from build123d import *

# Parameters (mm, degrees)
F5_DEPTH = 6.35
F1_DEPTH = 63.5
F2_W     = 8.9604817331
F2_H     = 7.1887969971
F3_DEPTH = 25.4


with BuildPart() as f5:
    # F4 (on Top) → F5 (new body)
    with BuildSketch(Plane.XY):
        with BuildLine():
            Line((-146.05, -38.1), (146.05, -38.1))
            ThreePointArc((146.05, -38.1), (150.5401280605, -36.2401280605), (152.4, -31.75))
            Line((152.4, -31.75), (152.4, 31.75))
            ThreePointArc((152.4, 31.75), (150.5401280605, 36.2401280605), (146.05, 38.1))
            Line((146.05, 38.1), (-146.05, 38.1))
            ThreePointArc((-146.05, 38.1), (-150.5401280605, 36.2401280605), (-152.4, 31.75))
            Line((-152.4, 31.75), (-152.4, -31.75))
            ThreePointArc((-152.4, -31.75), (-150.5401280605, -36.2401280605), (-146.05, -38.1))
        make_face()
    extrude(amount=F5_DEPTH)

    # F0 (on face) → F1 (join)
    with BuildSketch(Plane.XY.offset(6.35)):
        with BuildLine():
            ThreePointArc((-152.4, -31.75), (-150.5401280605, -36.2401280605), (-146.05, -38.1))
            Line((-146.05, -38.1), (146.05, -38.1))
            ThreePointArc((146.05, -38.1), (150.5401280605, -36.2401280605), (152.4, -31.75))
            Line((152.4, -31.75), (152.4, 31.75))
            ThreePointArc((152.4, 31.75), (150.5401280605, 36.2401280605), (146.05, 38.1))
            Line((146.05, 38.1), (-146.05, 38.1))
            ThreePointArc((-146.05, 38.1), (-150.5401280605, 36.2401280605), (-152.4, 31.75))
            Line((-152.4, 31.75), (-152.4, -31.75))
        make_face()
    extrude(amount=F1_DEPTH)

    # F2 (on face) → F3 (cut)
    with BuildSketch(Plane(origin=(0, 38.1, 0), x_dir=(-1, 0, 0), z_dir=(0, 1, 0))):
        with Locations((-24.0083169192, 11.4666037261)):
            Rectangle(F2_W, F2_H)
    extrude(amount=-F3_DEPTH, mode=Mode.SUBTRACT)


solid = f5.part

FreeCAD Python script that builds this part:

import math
import FreeCAD as App
import Part
import Sketcher

V = App.Vector
Q = App.Units.Quantity


def add_polygon(sketch, points):
    """Adds a closed chain of lines whose ends are joined by coincident constraints."""
    first, n = sketch.GeometryCount, len(points)
    for a, b in zip(points, points[1:] + points[:1]):
        sketch.addGeometry(Part.LineSegment(App.Vector(*a, 0), App.Vector(*b, 0)), False)
    for i in range(n):
        sketch.addConstraint(Sketcher.Constraint("Coincident", first + i, 2, first + (i + 1) % n, 1))

doc = App.newDocument("Part")
body = doc.addObject("PartDesign::Body", "Body")

sketch1 = doc.addObject("Sketcher::SketchObject", "Sketch")
body.addObject(sketch1)
sketch1.AttachmentSupport = (doc.XY_Plane, [""])
sketch1.MapMode = "FlatFace"
sketch1.addGeometry(Part.LineSegment(V(-146, -38, 0), V(146, -38, 0)), False)
sketch1.addGeometry(Part.ArcOfCircle(Part.Circle(V(146, -32, 0), V(0, 0, 1), 6), math.radians(-90), math.radians(0)), False)
sketch1.addGeometry(Part.LineSegment(V(152, -32, 0), V(152, 32, 0)), False)
sketch1.addGeometry(Part.ArcOfCircle(Part.Circle(V(146, 32, 0), V(0, 0, 1), 6), math.radians(0), math.radians(90)), False)
sketch1.addGeometry(Part.LineSegment(V(146, 38, 0), V(-146, 38, 0)), False)
sketch1.addGeometry(Part.ArcOfCircle(Part.Circle(V(-146, 32, 0), V(0, 0, 1), 6), math.radians(90), math.radians(180)), False)
sketch1.addGeometry(Part.LineSegment(V(-152, 32, 0), V(-152, -32, 0)), False)
sketch1.addGeometry(Part.ArcOfCircle(Part.Circle(V(-146, -32, 0), V(0, 0, 1), 6), math.radians(180), math.radians(270)), False)
sketch1.addConstraint(Sketcher.Constraint("Tangent", 0, 2, 1, 1))
sketch1.addConstraint(Sketcher.Constraint("Tangent", 1, 2, 2, 1))
sketch1.addConstraint(Sketcher.Constraint("Tangent", 2, 2, 3, 1))
sketch1.addConstraint(Sketcher.Constraint("Tangent", 3, 2, 4, 1))
sketch1.addConstraint(Sketcher.Constraint("Tangent", 4, 2, 5, 1))
sketch1.addConstraint(Sketcher.Constraint("Tangent", 5, 2, 6, 1))
sketch1.addConstraint(Sketcher.Constraint("Tangent", 6, 2, 7, 1))
sketch1.addConstraint(Sketcher.Constraint("Tangent", 7, 2, 0, 1))
sketch1.addConstraint(Sketcher.Constraint("Horizontal", 0))
sketch1.addConstraint(Sketcher.Constraint("Vertical", 2))
sketch1.addConstraint(Sketcher.Constraint("Horizontal", 4))
sketch1.addConstraint(Sketcher.Constraint("Vertical", 6))
sketch1.addConstraint(Sketcher.Constraint("Equal", 1, 3))
sketch1.addConstraint(Sketcher.Constraint("Equal", 3, 5))
sketch1.addConstraint(Sketcher.Constraint("Equal", 5, 7))
sketch1.addConstraint(Sketcher.Constraint("Symmetric", 1, 3, 5, 3, -1, 1))
sketch1.addConstraint(Sketcher.Constraint("Radius", 1, Q("0.25 in")))
sketch1.addConstraint(Sketcher.Constraint("DistanceX", 0, 1, 0, 2, Q("11.5 in")))
sketch1.addConstraint(Sketcher.Constraint("DistanceY", 2, 1, 2, 2, Q("2.5 in")))
pad1 = doc.addObject("PartDesign::Pad", "Pad")
body.addObject(pad1)
pad1.Profile = sketch1
pad1.Length = Q("0.25 in")

sketch2 = doc.addObject("Sketcher::SketchObject", "Sketch001")
body.addObject(sketch2)
sketch2.AttachmentSupport = (doc.XY_Plane, [""])
sketch2.MapMode = "FlatFace"
sketch2.AttachmentOffset = App.Placement(V(0, 0, 0.25 * 25.4), App.Rotation())
sketch2.addGeometry(Part.ArcOfCircle(Part.Circle(V(-146, -32, 0), V(0, 0, 1), 6), math.radians(180), math.radians(270)), False)
sketch2.addGeometry(Part.LineSegment(V(-146, -38, 0), V(146, -38, 0)), False)
sketch2.addGeometry(Part.ArcOfCircle(Part.Circle(V(146, -32, 0), V(0, 0, 1), 6), math.radians(-90), math.radians(0)), False)
sketch2.addGeometry(Part.LineSegment(V(152, -32, 0), V(152, 32, 0)), False)
sketch2.addGeometry(Part.ArcOfCircle(Part.Circle(V(146, 32, 0), V(0, 0, 1), 6), math.radians(0), math.radians(90)), False)
sketch2.addGeometry(Part.LineSegment(V(146, 38, 0), V(-146, 38, 0)), False)
sketch2.addGeometry(Part.ArcOfCircle(Part.Circle(V(-146, 32, 0), V(0, 0, 1), 6), math.radians(90), math.radians(180)), False)
sketch2.addGeometry(Part.LineSegment(V(-152, 32, 0), V(-152, -32, 0)), False)
sketch2.addConstraint(Sketcher.Constraint("Tangent", 0, 2, 1, 1))
sketch2.addConstraint(Sketcher.Constraint("Tangent", 1, 2, 2, 1))
sketch2.addConstraint(Sketcher.Constraint("Tangent", 2, 2, 3, 1))
sketch2.addConstraint(Sketcher.Constraint("Tangent", 3, 2, 4, 1))
sketch2.addConstraint(Sketcher.Constraint("Tangent", 4, 2, 5, 1))
sketch2.addConstraint(Sketcher.Constraint("Tangent", 5, 2, 6, 1))
sketch2.addConstraint(Sketcher.Constraint("Tangent", 6, 2, 7, 1))
sketch2.addConstraint(Sketcher.Constraint("Tangent", 7, 2, 0, 1))
sketch2.addConstraint(Sketcher.Constraint("Horizontal", 1))
sketch2.addConstraint(Sketcher.Constraint("Vertical", 3))
sketch2.addConstraint(Sketcher.Constraint("Horizontal", 5))
sketch2.addConstraint(Sketcher.Constraint("Vertical", 7))
sketch2.addConstraint(Sketcher.Constraint("Equal", 0, 2))
sketch2.addConstraint(Sketcher.Constraint("Equal", 2, 4))
sketch2.addConstraint(Sketcher.Constraint("Equal", 4, 6))
sketch2.addConstraint(Sketcher.Constraint("Symmetric", 0, 3, 4, 3, -1, 1))
sketch2.addConstraint(Sketcher.Constraint("Radius", 0, Q("0.25 in")))
sketch2.addConstraint(Sketcher.Constraint("DistanceX", 1, 1, 1, 2, Q("11.5 in")))
sketch2.addConstraint(Sketcher.Constraint("DistanceY", 3, 1, 3, 2, Q("2.5 in")))
pad2 = doc.addObject("PartDesign::Pad", "Pad001")
body.addObject(pad2)
pad2.Profile = sketch2
pad2.Length = Q("2.5 in")

sketch3 = doc.addObject("Sketcher::SketchObject", "Sketch002")
body.addObject(sketch3)
sketch3.AttachmentSupport = (doc.XZ_Plane, [""])
sketch3.MapMode = "FlatFace"
sketch3.AttachmentOffset = App.Placement(V(0, 0, -1.5 * 25.4), App.Rotation())
add_polygon(sketch3, [(28, 15), (28, 8), (20, 8), (20, 15)])
sketch3.addConstraint(Sketcher.Constraint("Vertical", 0))
sketch3.addConstraint(Sketcher.Constraint("Horizontal", 1))
sketch3.addConstraint(Sketcher.Constraint("Vertical", 2))
sketch3.addConstraint(Sketcher.Constraint("Horizontal", 3))
sketch3.addConstraint(Sketcher.Constraint("DistanceX", 1, 2, 1, 1, Q("8.960482 mm")))
sketch3.addConstraint(Sketcher.Constraint("DistanceY", 0, 2, 0, 1, Q("7.188797 mm")))
sketch3.addConstraint(Sketcher.Constraint("DistanceX", -1, 1, 0, 2, Q("28.488558 mm")))
sketch3.addConstraint(Sketcher.Constraint("DistanceY", -1, 1, 0, 2, Q("7.872205 mm")))
pocket1 = doc.addObject("PartDesign::Pocket", "Pocket")
body.addObject(pocket1)
pocket1.Profile = sketch3
pocket1.Length = Q("1 in")
pocket1.Reversed = True

doc.recompute()
